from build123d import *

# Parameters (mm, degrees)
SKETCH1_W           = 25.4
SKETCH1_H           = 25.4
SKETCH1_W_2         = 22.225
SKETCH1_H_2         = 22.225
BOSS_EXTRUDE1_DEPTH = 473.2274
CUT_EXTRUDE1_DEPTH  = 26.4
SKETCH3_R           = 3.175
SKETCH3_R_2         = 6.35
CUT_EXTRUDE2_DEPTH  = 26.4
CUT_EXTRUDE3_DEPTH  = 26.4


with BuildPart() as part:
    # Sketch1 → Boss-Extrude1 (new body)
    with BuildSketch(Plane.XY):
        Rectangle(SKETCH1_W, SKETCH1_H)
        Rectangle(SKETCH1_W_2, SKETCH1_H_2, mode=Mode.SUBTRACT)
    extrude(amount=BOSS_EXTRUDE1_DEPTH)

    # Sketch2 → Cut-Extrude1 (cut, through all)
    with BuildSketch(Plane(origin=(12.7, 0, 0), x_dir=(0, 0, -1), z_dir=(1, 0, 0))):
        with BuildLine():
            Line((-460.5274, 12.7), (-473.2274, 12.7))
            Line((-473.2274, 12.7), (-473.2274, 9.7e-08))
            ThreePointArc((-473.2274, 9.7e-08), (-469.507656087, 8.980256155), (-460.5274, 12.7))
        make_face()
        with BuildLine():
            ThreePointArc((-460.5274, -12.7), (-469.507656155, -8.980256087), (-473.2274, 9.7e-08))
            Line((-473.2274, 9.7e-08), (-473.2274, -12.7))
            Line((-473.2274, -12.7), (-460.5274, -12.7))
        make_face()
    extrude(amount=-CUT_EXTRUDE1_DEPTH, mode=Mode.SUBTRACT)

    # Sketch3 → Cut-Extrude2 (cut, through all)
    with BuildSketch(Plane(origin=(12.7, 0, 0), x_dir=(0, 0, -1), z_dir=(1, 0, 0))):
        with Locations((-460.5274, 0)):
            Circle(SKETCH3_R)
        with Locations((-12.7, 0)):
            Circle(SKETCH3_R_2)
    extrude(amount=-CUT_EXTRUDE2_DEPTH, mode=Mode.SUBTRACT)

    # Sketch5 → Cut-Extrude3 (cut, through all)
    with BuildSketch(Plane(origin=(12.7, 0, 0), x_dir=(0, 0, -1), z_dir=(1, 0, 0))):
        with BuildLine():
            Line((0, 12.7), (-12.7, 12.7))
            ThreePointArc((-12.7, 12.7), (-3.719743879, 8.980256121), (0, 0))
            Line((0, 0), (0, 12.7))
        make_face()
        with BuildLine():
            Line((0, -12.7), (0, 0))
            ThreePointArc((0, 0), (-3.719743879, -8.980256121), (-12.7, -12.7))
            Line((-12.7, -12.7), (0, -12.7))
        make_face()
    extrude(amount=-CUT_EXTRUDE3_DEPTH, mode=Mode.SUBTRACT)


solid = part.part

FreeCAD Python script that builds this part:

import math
import FreeCAD as App
import Part
import Sketcher
Q = App.Units.Quantity


def add_polygon(sketch, points):
    """Adds a closed chain of lines whose ends are joined by coincident constraints."""
    first, n = sketch.GeometryCount, len(points)
    for a, b in zip(points, points[1:] + points[:1]):
        sketch.addGeometry(Part.LineSegment(App.Vector(*a, 0), App.Vector(*b, 0)), False)
    for i in range(n):
        sketch.addConstraint(Sketcher.Constraint("Coincident", first + i, 2, first + (i + 1) % n, 1))

doc = App.newDocument("Part")
body = doc.addObject("PartDesign::Body", "Body")

sketch1 = doc.addObject("Sketcher::SketchObject", "Sketch")
body.addObject(sketch1)
sketch1.AttachmentSupport = (doc.XY_Plane, [""])
sketch1.MapMode = "FlatFace"
add_polygon(sketch1, [(-12.7, 12.7), (-12.7, -12.7), (12.7, -12.7), (12.7, 12.7)])
add_polygon(sketch1, [(11.1125, -11.1125), (-11.1125, -11.1125), (-11.1125, 11.1125), (11.1125, 11.1125)])
sketch1.addConstraint([
    Sketcher.Constraint("Vertical", 0),
    Sketcher.Constraint("Horizontal", 1),
    Sketcher.Constraint("Vertical", 2),
    Sketcher.Constraint("Horizontal", 3),
    Sketcher.Constraint("Horizontal", 4),
    Sketcher.Constraint("Vertical", 5),
    Sketcher.Constraint("Horizontal", 6),
    Sketcher.Constraint("Vertical", 7),
    Sketcher.Constraint("Symmetric", 0, 2, 2, 2, -1, 1),
    Sketcher.Constraint("Symmetric", 4, 2, 6, 2, -1, 1),
    Sketcher.Constraint("Equal", 3, 0),
    Sketcher.Constraint("Equal", 6, 5),
    Sketcher.Constraint("DistanceX", 1, 1, 1, 2, Q("1 in")),
    Sketcher.Constraint("DistanceX", 4, 2, 4, 1, Q("0.875 in")),
])
pad1 = doc.addObject("PartDesign::Pad", "Pad")
body.addObject(pad1)
pad1.Profile = sketch1
pad1.Length = Q("18.631 in")

sketch2 = doc.addObject("Sketcher::SketchObject", "Sketch001")
body.addObject(sketch2)
sketch2.AttachmentSupport = (doc.YZ_Plane, [""])
sketch2.MapMode = "FlatFace"
sketch2.AttachmentOffset = App.Placement(App.Vector(0, 0, 0.5 * 25.4), App.Rotation())
sketch2.addGeometry([
    Part.LineSegment(App.Vector(12.7, 460.5274, 0), App.Vector(12.7, 473.2274, 0)),
    Part.LineSegment(App.Vector(12.7, 473.2274, 0), App.Vector(0, 473.2274, 0)),
    Part.ArcOfCircle(Part.Circle(App.Vector(0, 460.5274, 0), App.Vector(0, 0, 1), 12.7), math.radians(0), math.radians(90)),
    Part.ArcOfCircle(Part.Circle(App.Vector(0, 460.5274, 0), App.Vector(0, 0, 1), 12.7), math.radians(90), math.radians(180)),
    Part.LineSegment(App.Vector(0, 473.2274, 0), App.Vector(-12.7, 473.2274, 0)),
    Part.LineSegment(App.Vector(-12.7, 473.2274, 0), App.Vector(-12.7, 460.5274, 0)),
], False)
sketch2.addConstraint([
    Sketcher.Constraint("Coincident", 0, 2, 1, 1),
    Sketcher.Constraint("Tangent", 1, 2, 2, 2),
    Sketcher.Constraint("Tangent", 2, 1, 0, 1),
    Sketcher.Constraint("Tangent", 3, 1, 4, 1),
    Sketcher.Constraint("Coincident", 4, 2, 5, 1),
    Sketcher.Constraint("Tangent", 5, 2, 3, 2),
    Sketcher.Constraint("Vertical", 0),
    Sketcher.Constraint("Horizontal", 1),
    Sketcher.Constraint("Horizontal", 4),
    Sketcher.Constraint("Vertical", 5),
    Sketcher.Constraint("Coincident", 3, 3, 2, 3),
    Sketcher.Constraint("Equal", 2, 3),
    Sketcher.Constraint("PointOnObject", 2, 3, -2),
    Sketcher.Constraint("Radius", 2, Q("0.5 in")),
    Sketcher.Constraint("DistanceY", -1, 1, 2, 3, Q("18.131 in")),
])
pocket1 = doc.addObject("PartDesign::Pocket", "Pocket")
body.addObject(pocket1)
pocket1.Profile = sketch2
pocket1.Type = "ThroughAll"

sketch3 = doc.addObject("Sketcher::SketchObject", "Sketch002")
body.addObject(sketch3)
sketch3.AttachmentSupport = (doc.YZ_Plane, [""])
sketch3.MapMode = "FlatFace"
sketch3.AttachmentOffset = App.Placement(App.Vector(0, 0, 0.5 * 25.4), App.Rotation())
sketch3.addGeometry([
    Part.Circle(App.Vector(0, 460.5274, 0), App.Vector(0, 0, 1), 3.175),
    Part.Circle(App.Vector(0, 12.7, 0), App.Vector(0, 0, 1), 6.35),
], False)
sketch3.addConstraint([
    Sketcher.Constraint("PointOnObject", 0, 3, -2),
    Sketcher.Constraint("PointOnObject", 1, 3, -2),
    Sketcher.Constraint("Diameter", 1, Q("0.5 in")),
    Sketcher.Constraint("Diameter", 0, Q("0.25 in")),
    Sketcher.Constraint("DistanceY", -1, 1, 1, 3, Q("0.5 in")),
    Sketcher.Constraint("DistanceY", -1, 1, 0, 3, Q("18.131 in")),
])
pocket2 = doc.addObject("PartDesign::Pocket", "Pocket001")
body.addObject(pocket2)
pocket2.Profile = sketch3
pocket2.Type = "ThroughAll"

sketch4 = doc.addObject("Sketcher::SketchObject", "Sketch003")
body.addObject(sketch4)
sketch4.AttachmentSupport = (doc.YZ_Plane, [""])
sketch4.MapMode = "FlatFace"
sketch4.AttachmentOffset = App.Placement(App.Vector(0, 0, 0.5 * 25.4), App.Rotation())
sketch4.addGeometry([
    Part.LineSegment(App.Vector(12.7, 0, 0), App.Vector(12.7, 12.7, 0)),
    Part.ArcOfCircle(Part.Circle(App.Vector(0, 12.7, 0), App.Vector(0, 0, 1), 12.7), math.radians(-90), math.radians(0)),
    Part.LineSegment(App.Vector(0, 0, 0), App.Vector(12.7, 0, 0)),
    Part.LineSegment(App.Vector(-12.7, 0, 0), App.Vector(0, 0, 0)),
    Part.ArcOfCircle(Part.Circle(App.Vector(0, 12.7, 0), App.Vector(0, 0, 1), 12.7), math.radians(180), math.radians(270)),
    Part.LineSegment(App.Vector(-12.7, 12.7, 0), App.Vector(-12.7, 0, 0)),
], False)
sketch4.addConstraint([
    Sketcher.Constraint("Tangent", 0, 2, 1, 2),
    Sketcher.Constraint("Tangent", 1, 1, 2, 1),
    Sketcher.Constraint("Coincident", 2, 2, 0, 1),
    Sketcher.Constraint("Tangent", 3, 2, 4, 2),
    Sketcher.Constraint("Tangent", 4, 1, 5, 1),
    Sketcher.Constraint("Coincident", 5, 2, 3, 1),
    Sketcher.Constraint("Vertical", 0),
    Sketcher.Constraint("Horizontal", 2),
    Sketcher.Constraint("Horizontal", 3),
    Sketcher.Constraint("Vertical", 5),
    Sketcher.Constraint("Coincident", 1, 1, -1, 1),
    Sketcher.Constraint("Coincident", 3, 2, -1, 1),
    Sketcher.Constraint("Equal", 1, 4),
    Sketcher.Constraint("Radius", 1, Q("0.5 in")),
])
pocket3 = doc.addObject("PartDesign::Pocket", "Pocket002")
body.addObject(pocket3)
pocket3.Profile = sketch4
pocket3.Type = "ThroughAll"

doc.recompute()
